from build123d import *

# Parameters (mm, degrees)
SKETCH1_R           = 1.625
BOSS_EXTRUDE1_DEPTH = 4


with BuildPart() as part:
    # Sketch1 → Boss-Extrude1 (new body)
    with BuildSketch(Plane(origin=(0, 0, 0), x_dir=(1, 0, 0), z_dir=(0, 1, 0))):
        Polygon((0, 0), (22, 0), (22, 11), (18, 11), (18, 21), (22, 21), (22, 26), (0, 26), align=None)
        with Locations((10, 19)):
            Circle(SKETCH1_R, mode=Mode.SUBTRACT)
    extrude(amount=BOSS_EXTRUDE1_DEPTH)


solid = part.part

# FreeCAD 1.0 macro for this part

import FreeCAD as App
import Part
import Sketcher

V = App.Vector
Q = App.Units.Quantity

doc = App.newDocument("Part")
body = doc.addObject("PartDesign::Body", "Body")

# Sketch on XZ plane
sketch1 = body.newObject("Sketcher::SketchObject", "Sketch")
sketch1.AttachmentSupport = (doc.getObject("XZ_Plane"), [""])
sketch1.MapMode = "FlatFace"
sketch1.addGeometry(Part.LineSegment(V(0, 0, 0), V(22, 0, 0)), False)
sketch1.addGeometry(Part.LineSegment(V(22, 0, 0), V(22, -11, 0)), False)
sketch1.addGeometry(Part.LineSegment(V(22, -11, 0), V(18, -11, 0)), False)
sketch1.addGeometry(Part.LineSegment(V(18, -11, 0), V(18, -21, 0)), False)
sketch1.addGeometry(Part.LineSegment(V(18, -21, 0), V(22, -21, 0)), False)
sketch1.addGeometry(Part.LineSegment(V(22, -21, 0), V(22, -26, 0)), False)
sketch1.addGeometry(Part.LineSegment(V(22, -26, 0), V(0, -26, 0)), False)
sketch1.addGeometry(Part.LineSegment(V(0, -26, 0), V(0, 0, 0)), False)
sketch1.addGeometry(Part.Circle(V(10, -19, 0), V(0, 0, 1), 1.6), False)
sketch1.addConstraint(Sketcher.Constraint("Coincident", 0, 2, 1, 1))
sketch1.addConstraint(Sketcher.Constraint("Coincident", 1, 2, 2, 1))
sketch1.addConstraint(Sketcher.Constraint("Coincident", 2, 2, 3, 1))
sketch1.addConstraint(Sketcher.Constraint("Coincident", 3, 2, 4, 1))
sketch1.addConstraint(Sketcher.Constraint("Coincident", 4, 2, 5, 1))
sketch1.addConstraint(Sketcher.Constraint("Coincident", 5, 2, 6, 1))
sketch1.addConstraint(Sketcher.Constraint("Coincident", 6, 2, 7, 1))
sketch1.addConstraint(Sketcher.Constraint("Coincident", 7, 2, 0, 1))
sketch1.addConstraint(Sketcher.Constraint("Horizontal", 0))
sketch1.addConstraint(Sketcher.Constraint("Vertical", 1))
sketch1.addConstraint(Sketcher.Constraint("Horizontal", 2))
sketch1.addConstraint(Sketcher.Constraint("Vertical", 3))
sketch1.addConstraint(Sketcher.Constraint("Horizontal", 4))
sketch1.addConstraint(Sketcher.Constraint("Vertical", 5))
sketch1.addConstraint(Sketcher.Constraint("Horizontal", 6))
sketch1.addConstraint(Sketcher.Constraint("Vertical", 7))
sketch1.addConstraint(Sketcher.Constraint("Coincident", 7, 2, -1, 1))
sketch1.addConstraint(Sketcher.Constraint("Vertical", 1, 2, 4, 2))
sketch1.addConstraint(Sketcher.Constraint("Diameter", 8, Q("3.25 mm")))
sketch1.addConstraint(Sketcher.Constraint("DistanceX", 0, 1, 0, 2, Q("22 mm")))
sketch1.addConstraint(Sketcher.Constraint("DistanceX", 2, 2, 2, 1, Q("4 mm")))
sketch1.addConstraint(Sketcher.Constraint("DistanceY", 1, 2, 1, 1, Q("11 mm")))
sketch1.addConstraint(Sketcher.Constraint("DistanceY", 3, 2, 3, 1, Q("10 mm")))
sketch1.addConstraint(Sketcher.Constraint("DistanceY", 5, 2, 5, 1, Q("5 mm")))
sketch1.addConstraint(Sketcher.Constraint("DistanceX", -1, 1, 8, 3, Q("10 mm")))
sketch1.addConstraint(Sketcher.Constraint("DistanceY", 8, 3, -1, 1, Q("19 mm")))
pad1 = body.newObject("PartDesign::Pad", "Pad")
pad1.Profile = sketch1
pad1.Length = 4
pad1.Reversed = True

doc.recompute()
